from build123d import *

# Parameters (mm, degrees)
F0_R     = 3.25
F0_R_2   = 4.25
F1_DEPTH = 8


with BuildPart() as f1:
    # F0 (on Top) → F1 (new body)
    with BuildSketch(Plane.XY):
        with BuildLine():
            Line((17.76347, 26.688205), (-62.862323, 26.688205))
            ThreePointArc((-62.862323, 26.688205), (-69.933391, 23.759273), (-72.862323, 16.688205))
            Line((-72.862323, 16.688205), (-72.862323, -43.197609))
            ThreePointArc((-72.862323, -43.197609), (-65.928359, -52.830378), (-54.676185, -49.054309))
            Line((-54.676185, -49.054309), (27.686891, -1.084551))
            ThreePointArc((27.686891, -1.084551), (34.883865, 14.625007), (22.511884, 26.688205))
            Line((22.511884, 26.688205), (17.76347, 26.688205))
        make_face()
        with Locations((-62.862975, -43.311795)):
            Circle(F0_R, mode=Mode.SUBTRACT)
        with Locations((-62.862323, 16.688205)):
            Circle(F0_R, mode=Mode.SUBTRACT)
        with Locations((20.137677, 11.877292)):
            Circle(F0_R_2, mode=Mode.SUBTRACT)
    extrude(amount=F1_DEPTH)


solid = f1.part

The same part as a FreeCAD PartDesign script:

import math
import FreeCAD as App
import Part
import Sketcher
from FreeCAD import Vector
Q = App.Units.Quantity

doc = App.newDocument("Part")
body = doc.addObject("PartDesign::Body", "Body")

sketch1 = body.newObject("Sketcher::SketchObject", "Sketch")
sketch1.AttachmentSupport = (doc.getObject("XY_Plane"), [""])
sketch1.MapMode = "FlatFace"
sketch1.addGeometry(Part.ArcOfCircle(Part.Circle(Vector(-62.9, 16.7, 0), Vector(0, 0, 1), 10), math.radians(90), math.radians(180)), False)
sketch1.addGeometry(Part.LineSegment(Vector(-72.9, 16.7, 0), Vector(-72.9, -43.2, 0)), False)
sketch1.addGeometry(Part.ArcOfCircle(Part.Circle(Vector(-62.9, -43.3, 0), Vector(0, 0, 1), 10), math.radians(179), math.radians(325)), False)
sketch1.addGeometry(Part.LineSegment(Vector(-54.7, -49.1, 0), Vector(27.7, -1.1, 0)), False)
sketch1.addGeometry(Part.ArcOfCircle(Part.Circle(Vector(20.1, 11.9, 0), Vector(0, 0, 1), 15), math.radians(-60), math.radians(81)), False)
sketch1.addGeometry(Part.LineSegment(Vector(22.5, 26.7, 0), Vector(-62.9, 26.7, 0)), False)
sketch1.addGeometry(Part.Circle(Vector(-62.9, -43.3, 0), Vector(0, 0, 1), 3.2), False)
sketch1.addGeometry(Part.Circle(Vector(-62.9, 16.7, 0), Vector(0, 0, 1), 3.2), False)
sketch1.addGeometry(Part.Circle(Vector(20.1, 11.9, 0), Vector(0, 0, 1), 4.2), False)
sketch1.addConstraint(Sketcher.Constraint("Tangent", 0, 2, 1, 1))
sketch1.addConstraint(Sketcher.Constraint("Coincident", 1, 2, 2, 1))
sketch1.addConstraint(Sketcher.Constraint("Coincident", 2, 2, 3, 1))
sketch1.addConstraint(Sketcher.Constraint("Tangent", 3, 2, 4, 1))
sketch1.addConstraint(Sketcher.Constraint("Coincident", 4, 2, 5, 1))
sketch1.addConstraint(Sketcher.Constraint("Tangent", 5, 2, 0, 1))
sketch1.addConstraint(Sketcher.Constraint("Vertical", 1))
sketch1.addConstraint(Sketcher.Constraint("Horizontal", 5))
sketch1.addConstraint(Sketcher.Constraint("Coincident", 6, 3, 2, 3))
sketch1.addConstraint(Sketcher.Constraint("Coincident", 7, 3, 0, 3))
sketch1.addConstraint(Sketcher.Constraint("Coincident", 8, 3, 4, 3))
sketch1.addConstraint(Sketcher.Constraint("Equal", 0, 2))
sketch1.addConstraint(Sketcher.Constraint("Equal", 6, 7))
sketch1.addConstraint(Sketcher.Constraint("Radius", 0, Q("9.999999 mm")))
sketch1.addConstraint(Sketcher.Constraint("Radius", 4, Q("15 mm")))
sketch1.addConstraint(Sketcher.Constraint("Diameter", 6, Q("6.5 mm")))
sketch1.addConstraint(Sketcher.Constraint("Diameter", 8, Q("8.5 mm")))
sketch1.addConstraint(Sketcher.Constraint("DistanceY", 2, 3, 0, 3, Q("60.000001 mm")))
sketch1.addConstraint(Sketcher.Constraint("DistanceX", 0, 3, 4, 3, Q("83 mm")))
sketch1.addConstraint(Sketcher.Constraint("DistanceY", 2, 2, 1, 2, Q("5.8567 mm")))
sketch1.addConstraint(Sketcher.Constraint("Distance", 3, Q("95.314081 mm")))
sketch1.addConstraint(Sketcher.Constraint("DistanceX", 5, 2, 5, 1, Q("85.374207 mm")))
sketch1.addConstraint(Sketcher.Constraint("DistanceY", -1, 1, 4, 3, Q("11.877292 mm")))
sketch1.addConstraint(Sketcher.Constraint("DistanceX", -1, 1, 3, 2, Q("27.686891 mm")))
pad1 = body.newObject("PartDesign::Pad", "Pad")
pad1.Profile = sketch1
pad1.Length = 8

doc.recompute()
